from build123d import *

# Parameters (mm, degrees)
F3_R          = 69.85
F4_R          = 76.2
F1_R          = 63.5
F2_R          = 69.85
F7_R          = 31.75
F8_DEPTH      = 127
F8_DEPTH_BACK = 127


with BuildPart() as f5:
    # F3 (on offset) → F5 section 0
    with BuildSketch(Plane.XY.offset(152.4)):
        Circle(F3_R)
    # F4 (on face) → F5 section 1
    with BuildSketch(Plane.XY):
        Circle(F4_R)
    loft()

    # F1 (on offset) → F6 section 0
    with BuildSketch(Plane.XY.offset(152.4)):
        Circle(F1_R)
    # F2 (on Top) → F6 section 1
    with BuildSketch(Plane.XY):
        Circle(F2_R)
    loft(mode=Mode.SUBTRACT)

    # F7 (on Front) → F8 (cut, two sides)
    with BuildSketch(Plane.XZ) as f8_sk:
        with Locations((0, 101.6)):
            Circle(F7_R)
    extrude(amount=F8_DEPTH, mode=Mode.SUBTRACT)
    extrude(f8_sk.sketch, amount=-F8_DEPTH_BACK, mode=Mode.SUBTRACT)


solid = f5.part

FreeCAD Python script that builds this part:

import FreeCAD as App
import Part
import Sketcher
Q = App.Units.Quantity

doc = App.newDocument("Part")
body = doc.addObject("PartDesign::Body", "Body")

# Sketch on XY plane
sketch1 = body.newObject("Sketcher::SketchObject", "Sketch")
sketch1.AttachmentSupport = (doc.getObject("XY_Plane"), [""])
sketch1.MapMode = "FlatFace"
sketch1.AttachmentOffset = App.Placement(App.Vector(0, 0, 6 * 25.4), App.Rotation())
sketch1.addGeometry(Part.Circle(App.Vector(0, 0, 0), App.Vector(0, 0, 1), 69.85), False)
sketch1.addConstraint(Sketcher.Constraint("Coincident", 0, 3, -1, 1))
sketch1.addConstraint(Sketcher.Constraint("Diameter", 0, Q("5.5 in")))

# Sketch on XY plane
sketch2 = body.newObject("Sketcher::SketchObject", "Sketch001")
sketch2.AttachmentSupport = (doc.getObject("XY_Plane"), [""])
sketch2.MapMode = "FlatFace"
sketch2.addGeometry(Part.Circle(App.Vector(0, 0, 0), App.Vector(0, 0, 1), 76.2), False)
sketch2.addConstraint(Sketcher.Constraint("Coincident", 0, 3, -1, 1))
sketch2.addConstraint(Sketcher.Constraint("Diameter", 0, Q("6 in")))

additiveloft = body.newObject("PartDesign::AdditiveLoft", "AdditiveLoft")
additiveloft.Profile = sketch1
additiveloft.Sections = [sketch2]

# Sketch on XY plane
sketch3 = body.newObject("Sketcher::SketchObject", "Sketch002")
sketch3.AttachmentSupport = (doc.getObject("XY_Plane"), [""])
sketch3.MapMode = "FlatFace"
sketch3.AttachmentOffset = App.Placement(App.Vector(0, 0, 6 * 25.4), App.Rotation())
sketch3.addGeometry(Part.Circle(App.Vector(0, 0, 0), App.Vector(0, 0, 1), 63.5), False)
sketch3.addConstraint(Sketcher.Constraint("Coincident", 0, 3, -1, 1))
sketch3.addConstraint(Sketcher.Constraint("Diameter", 0, Q("5 in")))

# Sketch on XY plane
sketch4 = body.newObject("Sketcher::SketchObject", "Sketch003")
sketch4.AttachmentSupport = (doc.getObject("XY_Plane"), [""])
sketch4.MapMode = "FlatFace"
sketch4.addGeometry(Part.Circle(App.Vector(0, 0, 0), App.Vector(0, 0, 1), 69.85), False)
sketch4.addConstraint(Sketcher.Constraint("Coincident", 0, 3, -1, 1))
sketch4.addConstraint(Sketcher.Constraint("Diameter", 0, Q("5.5 in")))

subtractiveloft = body.newObject("PartDesign::SubtractiveLoft", "SubtractiveLoft")
subtractiveloft.Profile = sketch3
subtractiveloft.Sections = [sketch4]

# Sketch on XZ plane
sketch5 = body.newObject("Sketcher::SketchObject", "Sketch004")
sketch5.AttachmentSupport = (doc.getObject("XZ_Plane"), [""])
sketch5.MapMode = "FlatFace"
sketch5.addGeometry(Part.Circle(App.Vector(0, 101.6, 0), App.Vector(0, 0, 1), 31.75), False)
sketch5.addConstraint(Sketcher.Constraint("PointOnObject", 0, 3, -2))
sketch5.addConstraint(Sketcher.Constraint("Diameter", 0, Q("2.5 in")))
sketch5.addConstraint(Sketcher.Constraint("DistanceY", -1, 1, 0, 3, Q("4 in")))
pocket1 = body.newObject("PartDesign::Pocket", "Pocket")
pocket1.Profile = sketch5
pocket1.Type = "ThroughAll"
pocket1.Midplane = True

doc.recompute()
